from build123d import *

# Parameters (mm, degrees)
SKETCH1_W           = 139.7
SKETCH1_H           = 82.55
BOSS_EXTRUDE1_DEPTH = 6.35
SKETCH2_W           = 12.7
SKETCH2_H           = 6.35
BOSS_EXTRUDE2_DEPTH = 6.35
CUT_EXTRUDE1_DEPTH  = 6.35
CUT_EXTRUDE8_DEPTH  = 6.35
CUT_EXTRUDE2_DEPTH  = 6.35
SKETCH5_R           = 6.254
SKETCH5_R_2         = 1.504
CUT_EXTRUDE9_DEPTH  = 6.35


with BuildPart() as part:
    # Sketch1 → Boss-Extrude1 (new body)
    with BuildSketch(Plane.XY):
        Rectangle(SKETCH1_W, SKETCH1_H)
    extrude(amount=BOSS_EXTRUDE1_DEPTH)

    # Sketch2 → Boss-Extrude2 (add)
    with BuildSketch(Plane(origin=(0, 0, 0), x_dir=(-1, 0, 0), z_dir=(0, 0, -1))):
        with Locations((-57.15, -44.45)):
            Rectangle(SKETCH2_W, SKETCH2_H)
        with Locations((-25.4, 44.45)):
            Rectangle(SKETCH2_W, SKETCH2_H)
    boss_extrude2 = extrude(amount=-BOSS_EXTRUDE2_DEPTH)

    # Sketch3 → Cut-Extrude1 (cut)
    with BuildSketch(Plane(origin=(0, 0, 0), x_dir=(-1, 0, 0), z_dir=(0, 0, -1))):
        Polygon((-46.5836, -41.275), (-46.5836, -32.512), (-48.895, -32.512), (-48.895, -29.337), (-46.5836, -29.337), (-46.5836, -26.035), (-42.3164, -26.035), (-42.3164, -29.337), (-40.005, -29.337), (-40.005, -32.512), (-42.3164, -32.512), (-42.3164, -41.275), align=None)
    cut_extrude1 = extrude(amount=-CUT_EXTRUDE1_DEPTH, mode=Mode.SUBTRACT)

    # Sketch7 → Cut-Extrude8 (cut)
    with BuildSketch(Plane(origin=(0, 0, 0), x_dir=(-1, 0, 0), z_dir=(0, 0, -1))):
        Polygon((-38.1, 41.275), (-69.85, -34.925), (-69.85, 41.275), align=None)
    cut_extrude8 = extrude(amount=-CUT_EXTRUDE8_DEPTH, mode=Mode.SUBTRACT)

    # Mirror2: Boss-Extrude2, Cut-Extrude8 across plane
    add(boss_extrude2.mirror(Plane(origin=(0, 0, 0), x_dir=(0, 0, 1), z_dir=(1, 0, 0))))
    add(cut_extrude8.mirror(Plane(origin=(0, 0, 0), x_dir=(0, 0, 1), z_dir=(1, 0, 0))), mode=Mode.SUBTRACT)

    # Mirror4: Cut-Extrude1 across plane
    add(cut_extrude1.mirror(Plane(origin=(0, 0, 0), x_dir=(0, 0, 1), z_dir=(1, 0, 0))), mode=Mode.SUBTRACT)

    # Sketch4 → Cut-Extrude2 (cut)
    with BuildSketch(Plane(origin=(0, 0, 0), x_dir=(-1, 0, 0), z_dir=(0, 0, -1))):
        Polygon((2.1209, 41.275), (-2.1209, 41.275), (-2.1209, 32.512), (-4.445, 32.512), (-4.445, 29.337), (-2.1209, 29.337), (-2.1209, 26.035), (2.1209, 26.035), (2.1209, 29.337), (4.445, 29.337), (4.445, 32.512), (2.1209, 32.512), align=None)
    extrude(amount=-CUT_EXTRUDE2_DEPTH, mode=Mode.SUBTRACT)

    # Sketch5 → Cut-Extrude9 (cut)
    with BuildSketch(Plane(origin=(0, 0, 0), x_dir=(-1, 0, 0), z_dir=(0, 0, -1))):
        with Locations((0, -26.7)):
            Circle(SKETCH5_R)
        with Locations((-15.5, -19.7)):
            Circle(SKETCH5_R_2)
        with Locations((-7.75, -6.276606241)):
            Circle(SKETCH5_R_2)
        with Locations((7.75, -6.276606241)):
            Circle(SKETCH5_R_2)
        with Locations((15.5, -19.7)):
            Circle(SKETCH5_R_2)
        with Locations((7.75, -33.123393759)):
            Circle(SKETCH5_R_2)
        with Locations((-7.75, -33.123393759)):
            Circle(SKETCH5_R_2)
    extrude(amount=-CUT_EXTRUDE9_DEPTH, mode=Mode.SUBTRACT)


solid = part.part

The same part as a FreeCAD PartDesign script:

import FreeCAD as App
import Part
import Sketcher

V = App.Vector
Q = App.Units.Quantity


def add_polygon(sketch, points):
    """Adds a closed chain of lines whose ends are joined by coincident constraints."""
    first, n = sketch.GeometryCount, len(points)
    for a, b in zip(points, points[1:] + points[:1]):
        sketch.addGeometry(Part.LineSegment(App.Vector(*a, 0), App.Vector(*b, 0)), False)
    for i in range(n):
        sketch.addConstraint(Sketcher.Constraint("Coincident", first + i, 2, first + (i + 1) % n, 1))

doc = App.newDocument("Part")
params = doc.addObject("Spreadsheet::Sheet", "Params")
for row, (alias, value) in enumerate([
    ("sketch1_width", "5.5 in"),
    ("sketch1_height", "3.25 in"),
    ("pad1_length", "0.25 in"),
    ("sketch2_width", "0.5 in"),
    ("sketch2_height", "0.25 in"),
    ("pad2_length", "0.25 in"),
    ("sketch3_height", "0.13 in"),
    ("sketch3_width", "0.168 in"),
    ("sketch3_width2", "0.091 in"),
    ("sketch3_height2", "0.345 in"),
    ("pocket1_length", "0.25 in"),
    ("sketch4_height", "3 in"),
    ("sketch4_width", "1.25 in"),
    ("pocket2_length", "0.25 in"),
    ("sketch5_height", "0.13 in"),
    ("sketch5_width", "0.167 in"),
    ("sketch5_height2", "0.345 in"),
    ("pocket3_length", "0.25 in"),
    ("pocket4_length", "0.25 in"),
], start=1):
    params.set(f"A{row}", alias)
    params.set(f"B{row}", "=" + value)
    params.setAlias(f"B{row}", alias)

body = doc.addObject("PartDesign::Body", "Body")

# Sketch on XY plane
sketch1 = body.newObject("Sketcher::SketchObject", "Sketch")
sketch1.AttachmentSupport = (doc.getObject("XY_Plane"), [""])
sketch1.MapMode = "FlatFace"
add_polygon(sketch1, [(-70, 41), (-70, -41), (70, -41), (70, 41)])  # lines 0-3
sketch1.addConstraint([
    Sketcher.Constraint("Vertical", 0),
    Sketcher.Constraint("Horizontal", 1),
    Sketcher.Constraint("Vertical", 2),
    Sketcher.Constraint("Horizontal", 3),
    Sketcher.Constraint("Symmetric", 0, 2, 2, 2, -1, 1),
    Sketcher.Constraint("DistanceX", 1, 1, 1, 2, Q("5.5 in")),
    Sketcher.Constraint("DistanceY", 0, 2, 0, 1, Q("3.25 in")),
])
sketch1.setExpression("Constraints[9]", "Params.sketch1_width")
sketch1.setExpression("Constraints[10]", "Params.sketch1_height")
pad1 = body.newObject("PartDesign::Pad", "Pad")
pad1.Profile = sketch1
pad1.setExpression("Length", "Params.pad1_length")

# Sketch on XY plane
sketch2 = body.newObject("Sketcher::SketchObject", "Sketch001")
sketch2.AttachmentSupport = (doc.getObject("XY_Plane"), [""])
sketch2.MapMode = "FlatFace"
add_polygon(sketch2, [(64, -41), (64, -48), (51, -48), (51, -41)])  # lines 0-3
add_polygon(sketch2, [(32, 48), (32, 41), (19, 41), (19, 48)])  # lines 4-7
sketch2.addConstraint([
    Sketcher.Constraint("Vertical", 0),
    Sketcher.Constraint("Horizontal", 1),
    Sketcher.Constraint("Vertical", 2),
    Sketcher.Constraint("Horizontal", 3),
    Sketcher.Constraint("Vertical", 4),
    Sketcher.Constraint("Horizontal", 5),
    Sketcher.Constraint("Vertical", 6),
    Sketcher.Constraint("Horizontal", 7),
    Sketcher.Constraint("Equal", 3, 5),
    Sketcher.Constraint("Equal", 2, 4),
    Sketcher.Constraint("DistanceX", 1, 2, 1, 1, Q("0.5 in")),
    Sketcher.Constraint("DistanceX", -1, 1, 1, 2, Q("2 in")),
    Sketcher.Constraint("DistanceY", 0, 2, 0, 1, Q("0.25 in")),
    Sketcher.Constraint("DistanceY", 1, 2, 4, 2, Q("3.5 in")),
    Sketcher.Constraint("DistanceX", -1, 1, 4, 2, Q("1.25 in")),
    Sketcher.Constraint("DistanceY", 0, 2, -1, 1, Q("1.875 in")),
])
sketch2.setExpression("Constraints[18]", "Params.sketch2_width")
sketch2.setExpression("Constraints[20]", "Params.sketch2_height")
pad2 = body.newObject("PartDesign::Pad", "Pad001")
pad2.Profile = sketch2
pad2.setExpression("Length", "Params.pad2_length")

# Sketch on XY plane
sketch3 = body.newObject("Sketcher::SketchObject", "Sketch002")
sketch3.AttachmentSupport = (doc.getObject("XY_Plane"), [""])
sketch3.MapMode = "FlatFace"
add_polygon(sketch3, [(46.6, -32.5), (46.6, -41.3), (42.3, -41.3), (42.3, -32.5), (40, -32.5), (40, -29.3), (42.3, -29.3), (42.3, -26), (46.6, -26), (46.6, -29.3), (48.9, -29.3), (48.9, -32.5)])  # lines 0-11
sketch3.addConstraint([
    Sketcher.Constraint("Vertical", 0),
    Sketcher.Constraint("Horizontal", 1),
    Sketcher.Constraint("Vertical", 2),
    Sketcher.Constraint("Horizontal", 3),
    Sketcher.Constraint("Vertical", 4),
    Sketcher.Constraint("Horizontal", 5),
    Sketcher.Constraint("Vertical", 6),
    Sketcher.Constraint("Horizontal", 7),
    Sketcher.Constraint("Vertical", 8),
    Sketcher.Constraint("Horizontal", 9),
    Sketcher.Constraint("Vertical", 10),
    Sketcher.Constraint("Horizontal", 11),
    Sketcher.Constraint("Horizontal", 5, 2, 8, 2),
    Sketcher.Constraint("Horizontal", 3, 2, 10, 2),
    Sketcher.Constraint("Vertical", 2, 2, 5, 2),
    Sketcher.Constraint("Vertical", 0, 2, 7, 2),
    Sketcher.Constraint("Equal", 5, 9),
    Sketcher.Constraint("DistanceY", 6, 1, 6, 2, Q("0.13 in")),
    Sketcher.Constraint("DistanceY", 1, 2, 6, 2, Q("0.6 in")),
    Sketcher.Constraint("DistanceX", 1, 2, 1, 1, Q("0.168 in")),
    Sketcher.Constraint("DistanceX", 3, 2, 3, 1, Q("0.091 in")),
    Sketcher.Constraint("DistanceY", 0, 2, 0, 1, Q("0.345 in")),
    Sketcher.Constraint("DistanceY", 2, 2, -1, 1, Q("1.28 in")),
    Sketcher.Constraint("DistanceX", -1, 1, 0, 2, Q("1.834 in")),
])
sketch3.setExpression("Constraints[29]", "Params.sketch3_height")
sketch3.setExpression("Constraints[31]", "Params.sketch3_width")
sketch3.setExpression("Constraints[32]", "Params.sketch3_width2")
sketch3.setExpression("Constraints[33]", "Params.sketch3_height2")
pocket1 = body.newObject("PartDesign::Pocket", "Pocket")
pocket1.Profile = sketch3
pocket1.setExpression("Length", "Params.pocket1_length")
pocket1.Reversed = True

# Sketch on XY plane
sketch4 = body.newObject("Sketcher::SketchObject", "Sketch003")
sketch4.AttachmentSupport = (doc.getObject("XY_Plane"), [""])
sketch4.MapMode = "FlatFace"
add_polygon(sketch4, [(70, -35), (38, 41), (70, 41)])  # lines 0-2
sketch4.addConstraint([
    Sketcher.Constraint("Horizontal", 1),
    Sketcher.Constraint("Vertical", 2),
    Sketcher.Constraint("DistanceY", 2, 2, 2, 1, Q("3 in")),
    Sketcher.Constraint("DistanceX", 1, 1, 1, 2, Q("1.25 in")),
    Sketcher.Constraint("DistanceX", -1, 1, 0, 2, Q("1.5 in")),
    Sketcher.Constraint("DistanceY", -1, 1, 0, 2, Q("1.625 in")),
])
sketch4.setExpression("Constraints[5]", "Params.sketch4_height")
sketch4.setExpression("Constraints[6]", "Params.sketch4_width")
pocket2 = body.newObject("PartDesign::Pocket", "Pocket001")
pocket2.Profile = sketch4
pocket2.setExpression("Length", "Params.pocket2_length")
pocket2.Reversed = True
doc.recompute()

mirrored = body.newObject("PartDesign::Mirrored", "Mirrored")
mirrored.Originals = [pad2, pocket2]
mirrored.MirrorPlane = (doc.getObject("YZ_Plane"), [""])
body.Tip = mirrored
doc.recompute()

mirrored2 = body.newObject("PartDesign::Mirrored", "Mirrored001")
mirrored2.Originals = [pocket1]
mirrored2.MirrorPlane = (doc.getObject("YZ_Plane"), [""])
body.Tip = mirrored2

# Sketch on XY plane
sketch5 = body.newObject("Sketcher::SketchObject", "Sketch004")
sketch5.AttachmentSupport = (doc.getObject("XY_Plane"), [""])
sketch5.MapMode = "FlatFace"
add_polygon(sketch5, [(-2.1, 41.3), (2.1, 41.3), (2.1, 32.5), (4.4, 32.5), (4.4, 29.3), (2.1, 29.3), (2.1, 26), (-2.1, 26), (-2.1, 29.3), (-4.4, 29.3), (-4.4, 32.5), (-2.1, 32.5)])  # lines 0-11
sketch5.addConstraint([
    Sketcher.Constraint("Horizontal", 0),
    Sketcher.Constraint("Vertical", 1),
    Sketcher.Constraint("Horizontal", 2),
    Sketcher.Constraint("Vertical", 3),
    Sketcher.Constraint("Horizontal", 4),
    Sketcher.Constraint("Vertical", 5),
    Sketcher.Constraint("Horizontal", 6),
    Sketcher.Constraint("Vertical", 7),
    Sketcher.Constraint("Horizontal", 8),
    Sketcher.Constraint("Vertical", 9),
    Sketcher.Constraint("Horizontal", 10),
    Sketcher.Constraint("Vertical", 11),
    Sketcher.Constraint("Symmetric", 4, 2, 7, 2, -2),
    Sketcher.Constraint("Symmetric", 2, 2, 9, 2, -2),
    Sketcher.Constraint("Vertical", 1, 2, 4, 2),
    Sketcher.Constraint("Vertical", 7, 2, 10, 2),
    Sketcher.Constraint("DistanceY", 5, 2, 5, 1, Q("0.13 in")),
    Sketcher.Constraint("DistanceY", 5, 2, 0, 2, Q("0.6 in")),
    Sketcher.Constraint("DistanceX", 0, 1, 0, 2, Q("0.167 in")),
    Sketcher.Constraint("DistanceY", 1, 2, 1, 1, Q("0.345 in")),
    Sketcher.Constraint("DistanceY", -1, 1, 1, 2, Q("1.28 in")),
    Sketcher.Constraint("DistanceX", 2, 1, 2, 2, Q("0.0915 in")),
])
sketch5.setExpression("Constraints[28]", "Params.sketch5_height")
sketch5.setExpression("Constraints[30]", "Params.sketch5_width")
sketch5.setExpression("Constraints[31]", "Params.sketch5_height2")
pocket3 = body.newObject("PartDesign::Pocket", "Pocket002")
pocket3.Profile = sketch5
pocket3.setExpression("Length", "Params.pocket3_length")
pocket3.Reversed = True

# Sketch on XY plane
sketch6 = body.newObject("Sketcher::SketchObject", "Sketch005")
sketch6.AttachmentSupport = (doc.getObject("XY_Plane"), [""])
sketch6.MapMode = "FlatFace"
sketch6.addGeometry([
    Part.Circle(V(0, -26.7, 0), V(0, 0, 1), 6.3),  # 0
    Part.Circle(V(15.5, -19.7, 0), V(0, 0, 1), 1.5),  # 1
    Part.Circle(V(7.8, -6.3, 0), V(0, 0, 1), 1.5),  # 2
    Part.Circle(V(-7.8, -6.3, 0), V(0, 0, 1), 1.5),  # 3
    Part.Circle(V(-15.5, -19.7, 0), V(0, 0, 1), 1.5),  # 4
    Part.Circle(V(-7.8, -33.1, 0), V(0, 0, 1), 1.5),  # 5
    Part.Circle(V(7.8, -33.1, 0), V(0, 0, 1), 1.5),  # 6
], False)
sketch6.addConstraint([
    Sketcher.Constraint("Equal", 1, 2),
    Sketcher.Constraint("Equal", 2, 3),
    Sketcher.Constraint("Equal", 3, 4),
    Sketcher.Constraint("Equal", 4, 5),
    Sketcher.Constraint("Equal", 5, 6),
    Sketcher.Constraint("Symmetric", 2, 3, 3, 3, -2),
    Sketcher.Constraint("Symmetric", 1, 3, 4, 3, -2),
    Sketcher.Constraint("Symmetric", 5, 3, 6, 3, -2),
    Sketcher.Constraint("PointOnObject", 0, 3, -2),
    Sketcher.Constraint("Vertical", 3, 3, 5, 3),
    Sketcher.Constraint("Diameter", 0, 12.508),
    Sketcher.Constraint("Diameter", 1, 3.008),
    Sketcher.Constraint("DistanceY", 0, 3, -1, 1, 26.7),
    Sketcher.Constraint("DistanceX", -1, 1, 1, 3, 15.5),
    Sketcher.Constraint("DistanceY", 1, 3, -1, 1, 19.7),
    Sketcher.Constraint("DistanceX", -1, 1, 2, 3, 7.75),
    Sketcher.Constraint("DistanceY", 2, 3, -1, 1, 6.276606),
    Sketcher.Constraint("DistanceY", 5, 3, -1, 1, 33.123394),
])
pocket4 = body.newObject("PartDesign::Pocket", "Pocket003")
pocket4.Profile = sketch6
pocket4.setExpression("Length", "Params.pocket4_length")
pocket4.Reversed = True

doc.recompute()
